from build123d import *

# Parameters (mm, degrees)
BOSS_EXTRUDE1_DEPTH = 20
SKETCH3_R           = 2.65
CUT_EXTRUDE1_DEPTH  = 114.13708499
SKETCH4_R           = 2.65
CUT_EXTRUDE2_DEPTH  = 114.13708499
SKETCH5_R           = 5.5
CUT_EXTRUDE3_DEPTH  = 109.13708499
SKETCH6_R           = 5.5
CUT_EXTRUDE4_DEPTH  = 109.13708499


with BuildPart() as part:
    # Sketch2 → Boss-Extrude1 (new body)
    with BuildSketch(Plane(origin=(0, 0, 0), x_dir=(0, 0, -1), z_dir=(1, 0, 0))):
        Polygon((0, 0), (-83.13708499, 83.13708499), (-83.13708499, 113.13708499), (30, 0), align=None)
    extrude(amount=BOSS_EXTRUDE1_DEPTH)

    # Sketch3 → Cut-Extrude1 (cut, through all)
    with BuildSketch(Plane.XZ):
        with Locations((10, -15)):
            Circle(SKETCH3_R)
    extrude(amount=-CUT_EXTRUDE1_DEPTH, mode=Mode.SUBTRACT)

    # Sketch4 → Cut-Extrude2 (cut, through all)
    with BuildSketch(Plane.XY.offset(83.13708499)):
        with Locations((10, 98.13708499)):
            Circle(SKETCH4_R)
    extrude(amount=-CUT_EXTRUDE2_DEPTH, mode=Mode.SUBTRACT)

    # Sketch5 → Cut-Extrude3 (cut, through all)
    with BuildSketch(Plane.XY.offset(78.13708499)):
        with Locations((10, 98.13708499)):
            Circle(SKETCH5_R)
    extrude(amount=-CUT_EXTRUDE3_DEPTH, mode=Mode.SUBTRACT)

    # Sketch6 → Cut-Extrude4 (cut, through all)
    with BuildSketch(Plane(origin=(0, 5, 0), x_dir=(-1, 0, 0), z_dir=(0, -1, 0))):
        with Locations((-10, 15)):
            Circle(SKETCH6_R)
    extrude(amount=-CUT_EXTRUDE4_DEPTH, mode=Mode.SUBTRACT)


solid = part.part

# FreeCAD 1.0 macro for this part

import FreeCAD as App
import Part
import Sketcher

V = App.Vector

doc = App.newDocument("Part")
params = doc.addObject("Spreadsheet::Sheet", "Params")
for row, (alias, value) in enumerate([
    ("sketch1_width", "30 mm"),
    ("sketch1_length", "160 mm"),
    ("pad1_length", "20 mm"),
    ("sketch2_diameter", "5.3 mm"),
    ("sketch3_diameter", "5.3 mm"),
    ("sketch4_diameter", "11 mm"),
    ("sketch5_diameter", "11 mm"),
], start=1):
    params.set(f"A{row}", alias)
    params.set(f"B{row}", "=" + value)
    params.setAlias(f"B{row}", alias)

body = doc.addObject("PartDesign::Body", "Body")

# Sketch on YZ plane
sketch1 = body.newObject("Sketcher::SketchObject", "Sketch")
sketch1.AttachmentSupport = (doc.getObject("YZ_Plane"), [""])
sketch1.MapMode = "FlatFace"
sketch1.addGeometry(Part.LineSegment(V(83, 83, 0), V(0, 0, 0)), False)
sketch1.addGeometry(Part.LineSegment(V(0, 0, 0), V(0, -30, 0)), False)
sketch1.addGeometry(Part.LineSegment(V(0, -30, 0), V(113, 83, 0)), False)
sketch1.addGeometry(Part.LineSegment(V(113, 83, 0), V(83, 83, 0)), False)
sketch1.addConstraint(Sketcher.Constraint("Coincident", 0, 2, 1, 1))
sketch1.addConstraint(Sketcher.Constraint("Coincident", 1, 2, 2, 1))
sketch1.addConstraint(Sketcher.Constraint("Coincident", 2, 2, 3, 1))
sketch1.addConstraint(Sketcher.Constraint("Coincident", 3, 2, 0, 1))
sketch1.addConstraint(Sketcher.Constraint("Vertical", 1))
sketch1.addConstraint(Sketcher.Constraint("Horizontal", 3))
sketch1.addConstraint(Sketcher.Constraint("Coincident", 0, 2, -1, 1))
sketch1.addConstraint(Sketcher.Constraint("Parallel", 0, 2))
sketch1.addConstraint(Sketcher.Constraint("Equal", 3, 1))
sketch1.addConstraint(Sketcher.Constraint("DistanceX", 3, 2, 3, 1, 30.0))
sketch1.addConstraint(Sketcher.Constraint("Distance", 2, 160.0))
sketch1.setExpression("Constraints[9]", "Params.sketch1_width")
sketch1.setExpression("Constraints[10]", "Params.sketch1_length")
pad1 = body.newObject("PartDesign::Pad", "Pad")
pad1.Profile = sketch1
pad1.setExpression("Length", "Params.pad1_length")

# Sketch on XZ plane
sketch2 = body.newObject("Sketcher::SketchObject", "Sketch001")
sketch2.AttachmentSupport = (doc.getObject("XZ_Plane"), [""])
sketch2.MapMode = "FlatFace"
sketch2.addGeometry(Part.Circle(V(10, -15, 0), V(0, 0, 1), 2.6), False)
sketch2.addConstraint(Sketcher.Constraint("Diameter", 0, 5.3))
sketch2.addConstraint(Sketcher.Constraint("DistanceX", -1, 1, 0, 3, 10.0))
sketch2.addConstraint(Sketcher.Constraint("DistanceY", 0, 3, -1, 1, 15.0))
sketch2.setExpression("Constraints[0]", "Params.sketch2_diameter")
pocket1 = body.newObject("PartDesign::Pocket", "Pocket")
pocket1.Profile = sketch2
pocket1.Type = "ThroughAll"

# Sketch on XY plane
sketch3 = body.newObject("Sketcher::SketchObject", "Sketch002")
sketch3.AttachmentSupport = (doc.getObject("XY_Plane"), [""])
sketch3.MapMode = "FlatFace"
sketch3.AttachmentOffset = App.Placement(V(0, 0, 83.137085), App.Rotation())
sketch3.addGeometry(Part.Circle(V(10, 98.1, 0), V(0, 0, 1), 2.6), False)
sketch3.addConstraint(Sketcher.Constraint("Diameter", 0, 5.3))
sketch3.addConstraint(Sketcher.Constraint("DistanceX", -1, 1, 0, 3, 10.0))
sketch3.addConstraint(Sketcher.Constraint("DistanceY", -1, 1, 0, 3, 98.137085))
sketch3.setExpression("Constraints[0]", "Params.sketch3_diameter")
pocket2 = body.newObject("PartDesign::Pocket", "Pocket001")
pocket2.Profile = sketch3
pocket2.Type = "ThroughAll"

# Sketch on XY plane
sketch4 = body.newObject("Sketcher::SketchObject", "Sketch003")
sketch4.AttachmentSupport = (doc.getObject("XY_Plane"), [""])
sketch4.MapMode = "FlatFace"
sketch4.AttachmentOffset = App.Placement(V(0, 0, 78.137085), App.Rotation())
sketch4.addGeometry(Part.Circle(V(10, 98, 0), V(0, 0, 1), 6), False)
sketch4.addConstraint(Sketcher.Constraint("Diameter", 0, 11.0))
sketch4.addConstraint(Sketcher.Constraint("DistanceX", -1, 1, 0, 3, 10.0))
sketch4.addConstraint(Sketcher.Constraint("DistanceY", -1, 1, 0, 3, 98.137085))
sketch4.setExpression("Constraints[0]", "Params.sketch4_diameter")
pocket3 = body.newObject("PartDesign::Pocket", "Pocket002")
pocket3.Profile = sketch4
pocket3.Type = "ThroughAll"

# Sketch on XZ plane
sketch5 = body.newObject("Sketcher::SketchObject", "Sketch004")
sketch5.AttachmentSupport = (doc.getObject("XZ_Plane"), [""])
sketch5.MapMode = "FlatFace"
sketch5.AttachmentOffset = App.Placement(V(0, 0, -5), App.Rotation())
sketch5.addGeometry(Part.Circle(V(10, -15, 0), V(0, 0, 1), 6), False)
sketch5.addConstraint(Sketcher.Constraint("Diameter", 0, 11.0))
sketch5.addConstraint(Sketcher.Constraint("DistanceX", -1, 1, 0, 3, 10.0))
sketch5.addConstraint(Sketcher.Constraint("DistanceY", 0, 3, -1, 1, 15.0))
sketch5.setExpression("Constraints[0]", "Params.sketch5_diameter")
pocket4 = body.newObject("PartDesign::Pocket", "Pocket003")
pocket4.Profile = sketch5
pocket4.Type = "ThroughAll"

doc.recompute()
